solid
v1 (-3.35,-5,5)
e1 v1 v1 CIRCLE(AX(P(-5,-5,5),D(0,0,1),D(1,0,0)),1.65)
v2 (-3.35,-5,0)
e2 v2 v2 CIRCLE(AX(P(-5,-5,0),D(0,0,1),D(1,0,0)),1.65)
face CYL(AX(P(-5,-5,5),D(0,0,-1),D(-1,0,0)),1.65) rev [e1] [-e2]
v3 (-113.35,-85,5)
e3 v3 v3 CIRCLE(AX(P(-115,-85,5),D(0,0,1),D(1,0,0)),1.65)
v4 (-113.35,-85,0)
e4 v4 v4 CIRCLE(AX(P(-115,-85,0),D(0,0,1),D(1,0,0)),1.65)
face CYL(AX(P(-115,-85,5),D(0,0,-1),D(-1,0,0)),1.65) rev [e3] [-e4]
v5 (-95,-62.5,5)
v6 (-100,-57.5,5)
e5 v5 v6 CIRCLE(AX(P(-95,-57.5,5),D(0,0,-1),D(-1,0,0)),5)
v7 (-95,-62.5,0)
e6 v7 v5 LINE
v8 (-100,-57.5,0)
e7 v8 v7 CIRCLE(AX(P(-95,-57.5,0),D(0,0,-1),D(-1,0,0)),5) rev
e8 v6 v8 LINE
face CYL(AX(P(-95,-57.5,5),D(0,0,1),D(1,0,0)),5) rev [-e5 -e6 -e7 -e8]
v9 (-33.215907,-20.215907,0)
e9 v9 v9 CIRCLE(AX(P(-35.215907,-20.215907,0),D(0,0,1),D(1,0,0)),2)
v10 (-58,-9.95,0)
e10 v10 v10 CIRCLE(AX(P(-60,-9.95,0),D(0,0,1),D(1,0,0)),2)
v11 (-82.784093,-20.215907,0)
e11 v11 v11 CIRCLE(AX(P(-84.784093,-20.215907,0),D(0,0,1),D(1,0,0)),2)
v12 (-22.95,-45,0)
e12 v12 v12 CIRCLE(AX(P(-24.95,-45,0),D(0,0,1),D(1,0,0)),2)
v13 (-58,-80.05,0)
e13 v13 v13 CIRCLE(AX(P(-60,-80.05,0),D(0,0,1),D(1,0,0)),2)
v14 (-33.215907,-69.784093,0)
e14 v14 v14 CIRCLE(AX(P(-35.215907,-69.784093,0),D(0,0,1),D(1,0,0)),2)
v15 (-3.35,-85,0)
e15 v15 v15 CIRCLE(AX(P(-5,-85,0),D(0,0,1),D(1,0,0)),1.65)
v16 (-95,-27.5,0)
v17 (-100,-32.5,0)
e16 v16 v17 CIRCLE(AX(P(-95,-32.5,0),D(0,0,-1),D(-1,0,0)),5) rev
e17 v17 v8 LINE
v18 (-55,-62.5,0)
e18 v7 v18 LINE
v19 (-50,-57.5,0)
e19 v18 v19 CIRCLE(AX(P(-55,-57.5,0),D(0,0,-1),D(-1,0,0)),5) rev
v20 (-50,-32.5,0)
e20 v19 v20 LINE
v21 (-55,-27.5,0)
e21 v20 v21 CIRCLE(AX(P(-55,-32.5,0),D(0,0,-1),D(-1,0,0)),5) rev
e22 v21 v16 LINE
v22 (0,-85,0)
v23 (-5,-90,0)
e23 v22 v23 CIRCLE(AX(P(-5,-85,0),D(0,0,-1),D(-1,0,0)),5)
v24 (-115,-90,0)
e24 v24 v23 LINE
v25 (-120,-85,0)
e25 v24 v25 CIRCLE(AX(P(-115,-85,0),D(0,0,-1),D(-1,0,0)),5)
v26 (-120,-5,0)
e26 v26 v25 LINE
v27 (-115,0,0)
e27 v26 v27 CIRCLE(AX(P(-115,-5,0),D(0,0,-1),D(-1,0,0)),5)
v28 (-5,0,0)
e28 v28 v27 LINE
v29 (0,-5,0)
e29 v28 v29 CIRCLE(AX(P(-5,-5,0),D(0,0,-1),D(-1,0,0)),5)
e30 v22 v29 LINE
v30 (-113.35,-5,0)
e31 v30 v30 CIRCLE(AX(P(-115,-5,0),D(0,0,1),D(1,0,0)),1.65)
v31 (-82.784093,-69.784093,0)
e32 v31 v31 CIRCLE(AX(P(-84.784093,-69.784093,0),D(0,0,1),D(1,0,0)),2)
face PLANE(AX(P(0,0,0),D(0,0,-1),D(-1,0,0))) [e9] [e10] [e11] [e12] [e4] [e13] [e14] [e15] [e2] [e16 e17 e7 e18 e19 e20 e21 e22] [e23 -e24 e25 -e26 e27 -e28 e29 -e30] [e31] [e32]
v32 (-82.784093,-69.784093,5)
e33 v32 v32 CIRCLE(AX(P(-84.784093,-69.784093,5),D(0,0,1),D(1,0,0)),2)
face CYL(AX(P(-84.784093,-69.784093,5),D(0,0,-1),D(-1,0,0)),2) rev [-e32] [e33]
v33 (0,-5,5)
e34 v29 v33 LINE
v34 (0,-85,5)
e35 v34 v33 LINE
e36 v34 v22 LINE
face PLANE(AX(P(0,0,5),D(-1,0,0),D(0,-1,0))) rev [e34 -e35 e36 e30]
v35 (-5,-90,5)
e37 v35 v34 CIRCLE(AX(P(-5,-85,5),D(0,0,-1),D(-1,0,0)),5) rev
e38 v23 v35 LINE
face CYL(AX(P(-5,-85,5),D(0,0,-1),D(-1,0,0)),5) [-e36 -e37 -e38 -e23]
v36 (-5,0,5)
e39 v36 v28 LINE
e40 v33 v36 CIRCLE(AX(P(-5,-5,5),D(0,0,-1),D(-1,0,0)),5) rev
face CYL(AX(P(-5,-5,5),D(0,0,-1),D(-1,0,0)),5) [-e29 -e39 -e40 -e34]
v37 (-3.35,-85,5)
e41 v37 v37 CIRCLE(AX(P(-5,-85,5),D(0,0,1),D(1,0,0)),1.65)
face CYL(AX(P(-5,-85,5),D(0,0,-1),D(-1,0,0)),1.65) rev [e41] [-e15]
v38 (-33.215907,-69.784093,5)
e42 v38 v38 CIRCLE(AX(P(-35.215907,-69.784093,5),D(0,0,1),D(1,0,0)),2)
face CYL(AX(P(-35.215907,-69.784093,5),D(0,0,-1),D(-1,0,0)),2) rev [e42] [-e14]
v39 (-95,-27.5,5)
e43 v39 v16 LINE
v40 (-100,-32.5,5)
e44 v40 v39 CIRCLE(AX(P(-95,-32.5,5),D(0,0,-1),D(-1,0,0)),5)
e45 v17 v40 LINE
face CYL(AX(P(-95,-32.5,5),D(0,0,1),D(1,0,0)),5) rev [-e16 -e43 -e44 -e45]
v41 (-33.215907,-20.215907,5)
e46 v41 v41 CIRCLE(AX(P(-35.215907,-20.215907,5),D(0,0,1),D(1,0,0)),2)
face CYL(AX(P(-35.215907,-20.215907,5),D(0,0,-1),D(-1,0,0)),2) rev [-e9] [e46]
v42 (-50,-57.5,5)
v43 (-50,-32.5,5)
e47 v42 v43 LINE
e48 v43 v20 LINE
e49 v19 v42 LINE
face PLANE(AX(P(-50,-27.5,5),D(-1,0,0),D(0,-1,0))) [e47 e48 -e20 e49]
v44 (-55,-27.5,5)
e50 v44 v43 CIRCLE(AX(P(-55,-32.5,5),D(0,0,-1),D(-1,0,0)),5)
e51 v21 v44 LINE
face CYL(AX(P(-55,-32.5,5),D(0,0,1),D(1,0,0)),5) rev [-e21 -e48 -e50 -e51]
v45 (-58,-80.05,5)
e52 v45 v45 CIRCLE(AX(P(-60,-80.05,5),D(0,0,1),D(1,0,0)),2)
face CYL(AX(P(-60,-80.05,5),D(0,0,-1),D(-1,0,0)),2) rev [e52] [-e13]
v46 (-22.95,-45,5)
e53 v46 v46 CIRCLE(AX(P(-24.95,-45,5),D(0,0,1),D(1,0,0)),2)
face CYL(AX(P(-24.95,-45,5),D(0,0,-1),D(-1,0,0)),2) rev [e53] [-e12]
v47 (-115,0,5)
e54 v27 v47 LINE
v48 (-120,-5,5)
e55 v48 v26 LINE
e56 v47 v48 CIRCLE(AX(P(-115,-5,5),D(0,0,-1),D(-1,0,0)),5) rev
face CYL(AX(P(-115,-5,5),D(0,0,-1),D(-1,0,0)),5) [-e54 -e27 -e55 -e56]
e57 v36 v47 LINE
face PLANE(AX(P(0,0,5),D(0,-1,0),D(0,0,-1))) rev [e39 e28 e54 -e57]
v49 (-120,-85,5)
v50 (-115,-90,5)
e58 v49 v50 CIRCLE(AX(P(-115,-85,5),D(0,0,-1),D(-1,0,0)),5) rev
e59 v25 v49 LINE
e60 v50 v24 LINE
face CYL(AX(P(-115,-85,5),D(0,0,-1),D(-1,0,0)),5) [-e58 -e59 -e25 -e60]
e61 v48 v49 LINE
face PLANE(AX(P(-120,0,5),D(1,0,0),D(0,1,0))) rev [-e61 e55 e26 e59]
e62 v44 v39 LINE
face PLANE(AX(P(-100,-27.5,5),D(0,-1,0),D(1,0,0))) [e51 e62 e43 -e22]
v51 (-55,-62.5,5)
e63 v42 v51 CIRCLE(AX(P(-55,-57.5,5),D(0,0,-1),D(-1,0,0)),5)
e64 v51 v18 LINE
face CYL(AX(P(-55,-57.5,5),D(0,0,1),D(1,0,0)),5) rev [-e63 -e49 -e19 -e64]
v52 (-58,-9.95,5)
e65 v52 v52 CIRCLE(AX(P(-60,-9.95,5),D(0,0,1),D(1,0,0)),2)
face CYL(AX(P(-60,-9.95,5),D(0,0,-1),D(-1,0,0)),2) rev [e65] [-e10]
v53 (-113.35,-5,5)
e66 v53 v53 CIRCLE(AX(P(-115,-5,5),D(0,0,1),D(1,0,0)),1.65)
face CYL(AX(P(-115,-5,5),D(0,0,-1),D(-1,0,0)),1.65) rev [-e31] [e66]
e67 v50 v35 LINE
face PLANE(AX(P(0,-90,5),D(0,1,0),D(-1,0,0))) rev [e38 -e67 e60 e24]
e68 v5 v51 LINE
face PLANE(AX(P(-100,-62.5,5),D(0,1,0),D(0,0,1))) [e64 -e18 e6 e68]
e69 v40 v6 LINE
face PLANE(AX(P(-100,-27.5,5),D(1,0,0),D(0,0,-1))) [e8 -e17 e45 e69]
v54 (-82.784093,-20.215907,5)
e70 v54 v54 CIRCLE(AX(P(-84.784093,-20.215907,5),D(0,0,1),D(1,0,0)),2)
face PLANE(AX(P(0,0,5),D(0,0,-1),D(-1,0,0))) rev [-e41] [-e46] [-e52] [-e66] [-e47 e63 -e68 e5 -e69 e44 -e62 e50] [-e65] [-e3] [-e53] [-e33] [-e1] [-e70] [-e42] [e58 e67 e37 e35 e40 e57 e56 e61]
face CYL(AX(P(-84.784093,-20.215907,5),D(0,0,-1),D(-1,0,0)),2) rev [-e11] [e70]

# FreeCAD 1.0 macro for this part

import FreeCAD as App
import Part
import Sketcher


def edges_at(feature, points):
    """Names of the edges that pass closest to the given points."""
    edges = feature.Shape.Edges
    near = lambda p: min(range(len(edges)), key=lambda i: edges[i].distToShape(Part.Vertex(*p))[0])
    return sorted({f"Edge{near(p) + 1}" for p in points})

doc = App.newDocument("Part")
body = doc.addObject("PartDesign::Body", "Body")

# Sketch on XY plane
sketch1 = body.newObject("Sketcher::SketchObject", "Sketch")
sketch1.AttachmentSupport = (doc.getObject("XY_Plane"), [""])
sketch1.MapMode = "FlatFace"
sketch1.addGeometry(Part.LineSegment(App.Vector(-120, 0, 0), App.Vector(-120, -90, 0)), False)
sketch1.addGeometry(Part.LineSegment(App.Vector(-120, -90, 0), App.Vector(0, -90, 0)), False)
sketch1.addGeometry(Part.LineSegment(App.Vector(0, -90, 0), App.Vector(0, 0, 0)), False)
sketch1.addGeometry(Part.LineSegment(App.Vector(0, 0, 0), App.Vector(-120, 0, 0)), False)
sketch1.addGeometry(Part.Circle(App.Vector(-115, -85, 0), App.Vector(0, 0, 1), 1.6), False)
sketch1.addGeometry(Part.Circle(App.Vector(-84.8, -69.8, 0), App.Vector(0, 0, 1), 2), False)
sketch1.addGeometry(Part.Circle(App.Vector(-60, -80, 0), App.Vector(0, 0, 1), 2), False)
sketch1.addGeometry(Part.Circle(App.Vector(-35.2, -69.8, 0), App.Vector(0, 0, 1), 2), False)
sketch1.addGeometry(Part.Circle(App.Vector(-5, -85, 0), App.Vector(0, 0, 1), 1.6), False)
sketch1.addGeometry(Part.LineSegment(App.Vector(-50, -62.5, 0), App.Vector(-100, -62.5, 0)), False)
sketch1.addGeometry(Part.LineSegment(App.Vector(-100, -62.5, 0), App.Vector(-100, -27.5, 0)), False)
sketch1.addGeometry(Part.LineSegment(App.Vector(-100, -27.5, 0), App.Vector(-50, -27.5, 0)), False)
sketch1.addGeometry(Part.LineSegment(App.Vector(-50, -27.5, 0), App.Vector(-50, -62.5, 0)), False)
sketch1.addGeometry(Part.Circle(App.Vector(-115, -5, 0), App.Vector(0, 0, 1), 1.6), False)
sketch1.addGeometry(Part.Circle(App.Vector(-84.8, -20.2, 0), App.Vector(0, 0, 1), 2), False)
sketch1.addGeometry(Part.Circle(App.Vector(-24.9, -45, 0), App.Vector(0, 0, 1), 2), False)
sketch1.addGeometry(Part.Circle(App.Vector(-35.2, -20.2, 0), App.Vector(0, 0, 1), 2), False)
sketch1.addGeometry(Part.Circle(App.Vector(-60, -9.9, 0), App.Vector(0, 0, 1), 2), False)
sketch1.addGeometry(Part.Circle(App.Vector(-5, -5, 0), App.Vector(0, 0, 1), 1.6), False)
sketch1.addConstraint(Sketcher.Constraint("Coincident", 0, 2, 1, 1))
sketch1.addConstraint(Sketcher.Constraint("Coincident", 1, 2, 2, 1))
sketch1.addConstraint(Sketcher.Constraint("Coincident", 2, 2, 3, 1))
sketch1.addConstraint(Sketcher.Constraint("Coincident", 3, 2, 0, 1))
sketch1.addConstraint(Sketcher.Constraint("Coincident", 9, 2, 10, 1))
sketch1.addConstraint(Sketcher.Constraint("Coincident", 10, 2, 11, 1))
sketch1.addConstraint(Sketcher.Constraint("Coincident", 11, 2, 12, 1))
sketch1.addConstraint(Sketcher.Constraint("Coincident", 12, 2, 9, 1))
sketch1.addConstraint(Sketcher.Constraint("Vertical", 0))
sketch1.addConstraint(Sketcher.Constraint("Horizontal", 1))
sketch1.addConstraint(Sketcher.Constraint("Vertical", 2))
sketch1.addConstraint(Sketcher.Constraint("Horizontal", 3))
sketch1.addConstraint(Sketcher.Constraint("Horizontal", 9))
sketch1.addConstraint(Sketcher.Constraint("Vertical", 10))
sketch1.addConstraint(Sketcher.Constraint("Horizontal", 11))
sketch1.addConstraint(Sketcher.Constraint("Vertical", 12))
sketch1.addConstraint(Sketcher.Constraint("Coincident", 2, 2, -1, 1))
sketch1.addConstraint(Sketcher.Constraint("Equal", 5, 6))
sketch1.addConstraint(Sketcher.Constraint("Equal", 6, 7))
sketch1.addConstraint(Sketcher.Constraint("Equal", 4, 8))
sketch1.addConstraint(Sketcher.Constraint("Equal", 8, 13))
sketch1.addConstraint(Sketcher.Constraint("Equal", 7, 14))
sketch1.addConstraint(Sketcher.Constraint("Equal", 14, 15))
sketch1.addConstraint(Sketcher.Constraint("Equal", 15, 16))
sketch1.addConstraint(Sketcher.Constraint("Equal", 16, 17))
sketch1.addConstraint(Sketcher.Constraint("Equal", 13, 18))
sketch1.addConstraint(Sketcher.Constraint("Horizontal", 5, 3, 7, 3))
sketch1.addConstraint(Sketcher.Constraint("Horizontal", 4, 3, 8, 3))
sketch1.addConstraint(Sketcher.Constraint("Horizontal", 14, 3, 16, 3))
sketch1.addConstraint(Sketcher.Constraint("Horizontal", 13, 3, 18, 3))
sketch1.addConstraint(Sketcher.Constraint("Vertical", 4, 3, 13, 3))
sketch1.addConstraint(Sketcher.Constraint("Vertical", 5, 3, 14, 3))
sketch1.addConstraint(Sketcher.Constraint("Vertical", 7, 3, 16, 3))
sketch1.addConstraint(Sketcher.Constraint("Vertical", 6, 3, 17, 3))
sketch1.addConstraint(Sketcher.Constraint("Vertical", 8, 3, 18, 3))
sketch1.addConstraint(Sketcher.Constraint("Diameter", 5, 4.0))
sketch1.addConstraint(Sketcher.Constraint("Diameter", 4, 3.3))
sketch1.addConstraint(Sketcher.Constraint("DistanceX", 1, 1, 1, 2, 120.0))
sketch1.addConstraint(Sketcher.Constraint("DistanceX", 9, 2, 9, 1, 50.0))
sketch1.addConstraint(Sketcher.Constraint("DistanceY", 0, 2, 0, 1, 90.0))
sketch1.addConstraint(Sketcher.Constraint("DistanceY", 10, 1, 10, 2, 35.0))
sketch1.addConstraint(Sketcher.Constraint("DistanceX", 4, 3, -1, 1, 115.0))
sketch1.addConstraint(Sketcher.Constraint("DistanceY", 4, 3, -1, 1, 85.0))
sketch1.addConstraint(Sketcher.Constraint("DistanceX", 6, 3, -1, 1, 60.0))
sketch1.addConstraint(Sketcher.Constraint("DistanceX", 8, 3, -1, 1, 5.0))
sketch1.addConstraint(Sketcher.Constraint("DistanceY", 13, 3, -1, 1, 5.0))
sketch1.addConstraint(Sketcher.Constraint("DistanceY", 15, 3, -1, 1, 45.0))
sketch1.addConstraint(Sketcher.Constraint("DistanceX", 9, 2, -1, 1, 100.0))
sketch1.addConstraint(Sketcher.Constraint("DistanceY", 9, 2, -1, 1, 62.5))
sketch1.addConstraint(Sketcher.Constraint("DistanceY", 6, 3, -1, 1, 80.05))
sketch1.addConstraint(Sketcher.Constraint("DistanceX", 15, 3, -1, 1, 24.95))
sketch1.addConstraint(Sketcher.Constraint("DistanceY", 17, 3, -1, 1, 9.95))
sketch1.addConstraint(Sketcher.Constraint("DistanceX", 5, 3, -1, 1, 84.784093))
sketch1.addConstraint(Sketcher.Constraint("DistanceY", 5, 3, -1, 1, 69.784093))
sketch1.addConstraint(Sketcher.Constraint("DistanceX", 7, 3, -1, 1, 35.215907))
sketch1.addConstraint(Sketcher.Constraint("DistanceY", 14, 3, -1, 1, 20.215907))
pad1 = body.newObject("PartDesign::Pad", "Pad")
pad1.Profile = sketch1
pad1.Length = 5
doc.recompute()

fillet = body.newObject("PartDesign::Fillet", "Fillet")
fillet.Base = (pad1, edges_at(pad1, [
    (0, -90, 2.5),
    (-120, -90, 2.5),
    (-120, 0, 2.5),
    (0, 0, 2.5),
]))
fillet.Radius = 5
doc.recompute()

fillet2 = body.newObject("PartDesign::Fillet", "Fillet001")
fillet2.Base = (fillet, edges_at(fillet, [
    (-100, -27.5, 2.5),
    (-100, -62.5, 2.5),
    (-50, -62.5, 2.5),
    (-50, -27.5, 2.5),
]))
fillet2.Radius = 5

doc.recompute()
